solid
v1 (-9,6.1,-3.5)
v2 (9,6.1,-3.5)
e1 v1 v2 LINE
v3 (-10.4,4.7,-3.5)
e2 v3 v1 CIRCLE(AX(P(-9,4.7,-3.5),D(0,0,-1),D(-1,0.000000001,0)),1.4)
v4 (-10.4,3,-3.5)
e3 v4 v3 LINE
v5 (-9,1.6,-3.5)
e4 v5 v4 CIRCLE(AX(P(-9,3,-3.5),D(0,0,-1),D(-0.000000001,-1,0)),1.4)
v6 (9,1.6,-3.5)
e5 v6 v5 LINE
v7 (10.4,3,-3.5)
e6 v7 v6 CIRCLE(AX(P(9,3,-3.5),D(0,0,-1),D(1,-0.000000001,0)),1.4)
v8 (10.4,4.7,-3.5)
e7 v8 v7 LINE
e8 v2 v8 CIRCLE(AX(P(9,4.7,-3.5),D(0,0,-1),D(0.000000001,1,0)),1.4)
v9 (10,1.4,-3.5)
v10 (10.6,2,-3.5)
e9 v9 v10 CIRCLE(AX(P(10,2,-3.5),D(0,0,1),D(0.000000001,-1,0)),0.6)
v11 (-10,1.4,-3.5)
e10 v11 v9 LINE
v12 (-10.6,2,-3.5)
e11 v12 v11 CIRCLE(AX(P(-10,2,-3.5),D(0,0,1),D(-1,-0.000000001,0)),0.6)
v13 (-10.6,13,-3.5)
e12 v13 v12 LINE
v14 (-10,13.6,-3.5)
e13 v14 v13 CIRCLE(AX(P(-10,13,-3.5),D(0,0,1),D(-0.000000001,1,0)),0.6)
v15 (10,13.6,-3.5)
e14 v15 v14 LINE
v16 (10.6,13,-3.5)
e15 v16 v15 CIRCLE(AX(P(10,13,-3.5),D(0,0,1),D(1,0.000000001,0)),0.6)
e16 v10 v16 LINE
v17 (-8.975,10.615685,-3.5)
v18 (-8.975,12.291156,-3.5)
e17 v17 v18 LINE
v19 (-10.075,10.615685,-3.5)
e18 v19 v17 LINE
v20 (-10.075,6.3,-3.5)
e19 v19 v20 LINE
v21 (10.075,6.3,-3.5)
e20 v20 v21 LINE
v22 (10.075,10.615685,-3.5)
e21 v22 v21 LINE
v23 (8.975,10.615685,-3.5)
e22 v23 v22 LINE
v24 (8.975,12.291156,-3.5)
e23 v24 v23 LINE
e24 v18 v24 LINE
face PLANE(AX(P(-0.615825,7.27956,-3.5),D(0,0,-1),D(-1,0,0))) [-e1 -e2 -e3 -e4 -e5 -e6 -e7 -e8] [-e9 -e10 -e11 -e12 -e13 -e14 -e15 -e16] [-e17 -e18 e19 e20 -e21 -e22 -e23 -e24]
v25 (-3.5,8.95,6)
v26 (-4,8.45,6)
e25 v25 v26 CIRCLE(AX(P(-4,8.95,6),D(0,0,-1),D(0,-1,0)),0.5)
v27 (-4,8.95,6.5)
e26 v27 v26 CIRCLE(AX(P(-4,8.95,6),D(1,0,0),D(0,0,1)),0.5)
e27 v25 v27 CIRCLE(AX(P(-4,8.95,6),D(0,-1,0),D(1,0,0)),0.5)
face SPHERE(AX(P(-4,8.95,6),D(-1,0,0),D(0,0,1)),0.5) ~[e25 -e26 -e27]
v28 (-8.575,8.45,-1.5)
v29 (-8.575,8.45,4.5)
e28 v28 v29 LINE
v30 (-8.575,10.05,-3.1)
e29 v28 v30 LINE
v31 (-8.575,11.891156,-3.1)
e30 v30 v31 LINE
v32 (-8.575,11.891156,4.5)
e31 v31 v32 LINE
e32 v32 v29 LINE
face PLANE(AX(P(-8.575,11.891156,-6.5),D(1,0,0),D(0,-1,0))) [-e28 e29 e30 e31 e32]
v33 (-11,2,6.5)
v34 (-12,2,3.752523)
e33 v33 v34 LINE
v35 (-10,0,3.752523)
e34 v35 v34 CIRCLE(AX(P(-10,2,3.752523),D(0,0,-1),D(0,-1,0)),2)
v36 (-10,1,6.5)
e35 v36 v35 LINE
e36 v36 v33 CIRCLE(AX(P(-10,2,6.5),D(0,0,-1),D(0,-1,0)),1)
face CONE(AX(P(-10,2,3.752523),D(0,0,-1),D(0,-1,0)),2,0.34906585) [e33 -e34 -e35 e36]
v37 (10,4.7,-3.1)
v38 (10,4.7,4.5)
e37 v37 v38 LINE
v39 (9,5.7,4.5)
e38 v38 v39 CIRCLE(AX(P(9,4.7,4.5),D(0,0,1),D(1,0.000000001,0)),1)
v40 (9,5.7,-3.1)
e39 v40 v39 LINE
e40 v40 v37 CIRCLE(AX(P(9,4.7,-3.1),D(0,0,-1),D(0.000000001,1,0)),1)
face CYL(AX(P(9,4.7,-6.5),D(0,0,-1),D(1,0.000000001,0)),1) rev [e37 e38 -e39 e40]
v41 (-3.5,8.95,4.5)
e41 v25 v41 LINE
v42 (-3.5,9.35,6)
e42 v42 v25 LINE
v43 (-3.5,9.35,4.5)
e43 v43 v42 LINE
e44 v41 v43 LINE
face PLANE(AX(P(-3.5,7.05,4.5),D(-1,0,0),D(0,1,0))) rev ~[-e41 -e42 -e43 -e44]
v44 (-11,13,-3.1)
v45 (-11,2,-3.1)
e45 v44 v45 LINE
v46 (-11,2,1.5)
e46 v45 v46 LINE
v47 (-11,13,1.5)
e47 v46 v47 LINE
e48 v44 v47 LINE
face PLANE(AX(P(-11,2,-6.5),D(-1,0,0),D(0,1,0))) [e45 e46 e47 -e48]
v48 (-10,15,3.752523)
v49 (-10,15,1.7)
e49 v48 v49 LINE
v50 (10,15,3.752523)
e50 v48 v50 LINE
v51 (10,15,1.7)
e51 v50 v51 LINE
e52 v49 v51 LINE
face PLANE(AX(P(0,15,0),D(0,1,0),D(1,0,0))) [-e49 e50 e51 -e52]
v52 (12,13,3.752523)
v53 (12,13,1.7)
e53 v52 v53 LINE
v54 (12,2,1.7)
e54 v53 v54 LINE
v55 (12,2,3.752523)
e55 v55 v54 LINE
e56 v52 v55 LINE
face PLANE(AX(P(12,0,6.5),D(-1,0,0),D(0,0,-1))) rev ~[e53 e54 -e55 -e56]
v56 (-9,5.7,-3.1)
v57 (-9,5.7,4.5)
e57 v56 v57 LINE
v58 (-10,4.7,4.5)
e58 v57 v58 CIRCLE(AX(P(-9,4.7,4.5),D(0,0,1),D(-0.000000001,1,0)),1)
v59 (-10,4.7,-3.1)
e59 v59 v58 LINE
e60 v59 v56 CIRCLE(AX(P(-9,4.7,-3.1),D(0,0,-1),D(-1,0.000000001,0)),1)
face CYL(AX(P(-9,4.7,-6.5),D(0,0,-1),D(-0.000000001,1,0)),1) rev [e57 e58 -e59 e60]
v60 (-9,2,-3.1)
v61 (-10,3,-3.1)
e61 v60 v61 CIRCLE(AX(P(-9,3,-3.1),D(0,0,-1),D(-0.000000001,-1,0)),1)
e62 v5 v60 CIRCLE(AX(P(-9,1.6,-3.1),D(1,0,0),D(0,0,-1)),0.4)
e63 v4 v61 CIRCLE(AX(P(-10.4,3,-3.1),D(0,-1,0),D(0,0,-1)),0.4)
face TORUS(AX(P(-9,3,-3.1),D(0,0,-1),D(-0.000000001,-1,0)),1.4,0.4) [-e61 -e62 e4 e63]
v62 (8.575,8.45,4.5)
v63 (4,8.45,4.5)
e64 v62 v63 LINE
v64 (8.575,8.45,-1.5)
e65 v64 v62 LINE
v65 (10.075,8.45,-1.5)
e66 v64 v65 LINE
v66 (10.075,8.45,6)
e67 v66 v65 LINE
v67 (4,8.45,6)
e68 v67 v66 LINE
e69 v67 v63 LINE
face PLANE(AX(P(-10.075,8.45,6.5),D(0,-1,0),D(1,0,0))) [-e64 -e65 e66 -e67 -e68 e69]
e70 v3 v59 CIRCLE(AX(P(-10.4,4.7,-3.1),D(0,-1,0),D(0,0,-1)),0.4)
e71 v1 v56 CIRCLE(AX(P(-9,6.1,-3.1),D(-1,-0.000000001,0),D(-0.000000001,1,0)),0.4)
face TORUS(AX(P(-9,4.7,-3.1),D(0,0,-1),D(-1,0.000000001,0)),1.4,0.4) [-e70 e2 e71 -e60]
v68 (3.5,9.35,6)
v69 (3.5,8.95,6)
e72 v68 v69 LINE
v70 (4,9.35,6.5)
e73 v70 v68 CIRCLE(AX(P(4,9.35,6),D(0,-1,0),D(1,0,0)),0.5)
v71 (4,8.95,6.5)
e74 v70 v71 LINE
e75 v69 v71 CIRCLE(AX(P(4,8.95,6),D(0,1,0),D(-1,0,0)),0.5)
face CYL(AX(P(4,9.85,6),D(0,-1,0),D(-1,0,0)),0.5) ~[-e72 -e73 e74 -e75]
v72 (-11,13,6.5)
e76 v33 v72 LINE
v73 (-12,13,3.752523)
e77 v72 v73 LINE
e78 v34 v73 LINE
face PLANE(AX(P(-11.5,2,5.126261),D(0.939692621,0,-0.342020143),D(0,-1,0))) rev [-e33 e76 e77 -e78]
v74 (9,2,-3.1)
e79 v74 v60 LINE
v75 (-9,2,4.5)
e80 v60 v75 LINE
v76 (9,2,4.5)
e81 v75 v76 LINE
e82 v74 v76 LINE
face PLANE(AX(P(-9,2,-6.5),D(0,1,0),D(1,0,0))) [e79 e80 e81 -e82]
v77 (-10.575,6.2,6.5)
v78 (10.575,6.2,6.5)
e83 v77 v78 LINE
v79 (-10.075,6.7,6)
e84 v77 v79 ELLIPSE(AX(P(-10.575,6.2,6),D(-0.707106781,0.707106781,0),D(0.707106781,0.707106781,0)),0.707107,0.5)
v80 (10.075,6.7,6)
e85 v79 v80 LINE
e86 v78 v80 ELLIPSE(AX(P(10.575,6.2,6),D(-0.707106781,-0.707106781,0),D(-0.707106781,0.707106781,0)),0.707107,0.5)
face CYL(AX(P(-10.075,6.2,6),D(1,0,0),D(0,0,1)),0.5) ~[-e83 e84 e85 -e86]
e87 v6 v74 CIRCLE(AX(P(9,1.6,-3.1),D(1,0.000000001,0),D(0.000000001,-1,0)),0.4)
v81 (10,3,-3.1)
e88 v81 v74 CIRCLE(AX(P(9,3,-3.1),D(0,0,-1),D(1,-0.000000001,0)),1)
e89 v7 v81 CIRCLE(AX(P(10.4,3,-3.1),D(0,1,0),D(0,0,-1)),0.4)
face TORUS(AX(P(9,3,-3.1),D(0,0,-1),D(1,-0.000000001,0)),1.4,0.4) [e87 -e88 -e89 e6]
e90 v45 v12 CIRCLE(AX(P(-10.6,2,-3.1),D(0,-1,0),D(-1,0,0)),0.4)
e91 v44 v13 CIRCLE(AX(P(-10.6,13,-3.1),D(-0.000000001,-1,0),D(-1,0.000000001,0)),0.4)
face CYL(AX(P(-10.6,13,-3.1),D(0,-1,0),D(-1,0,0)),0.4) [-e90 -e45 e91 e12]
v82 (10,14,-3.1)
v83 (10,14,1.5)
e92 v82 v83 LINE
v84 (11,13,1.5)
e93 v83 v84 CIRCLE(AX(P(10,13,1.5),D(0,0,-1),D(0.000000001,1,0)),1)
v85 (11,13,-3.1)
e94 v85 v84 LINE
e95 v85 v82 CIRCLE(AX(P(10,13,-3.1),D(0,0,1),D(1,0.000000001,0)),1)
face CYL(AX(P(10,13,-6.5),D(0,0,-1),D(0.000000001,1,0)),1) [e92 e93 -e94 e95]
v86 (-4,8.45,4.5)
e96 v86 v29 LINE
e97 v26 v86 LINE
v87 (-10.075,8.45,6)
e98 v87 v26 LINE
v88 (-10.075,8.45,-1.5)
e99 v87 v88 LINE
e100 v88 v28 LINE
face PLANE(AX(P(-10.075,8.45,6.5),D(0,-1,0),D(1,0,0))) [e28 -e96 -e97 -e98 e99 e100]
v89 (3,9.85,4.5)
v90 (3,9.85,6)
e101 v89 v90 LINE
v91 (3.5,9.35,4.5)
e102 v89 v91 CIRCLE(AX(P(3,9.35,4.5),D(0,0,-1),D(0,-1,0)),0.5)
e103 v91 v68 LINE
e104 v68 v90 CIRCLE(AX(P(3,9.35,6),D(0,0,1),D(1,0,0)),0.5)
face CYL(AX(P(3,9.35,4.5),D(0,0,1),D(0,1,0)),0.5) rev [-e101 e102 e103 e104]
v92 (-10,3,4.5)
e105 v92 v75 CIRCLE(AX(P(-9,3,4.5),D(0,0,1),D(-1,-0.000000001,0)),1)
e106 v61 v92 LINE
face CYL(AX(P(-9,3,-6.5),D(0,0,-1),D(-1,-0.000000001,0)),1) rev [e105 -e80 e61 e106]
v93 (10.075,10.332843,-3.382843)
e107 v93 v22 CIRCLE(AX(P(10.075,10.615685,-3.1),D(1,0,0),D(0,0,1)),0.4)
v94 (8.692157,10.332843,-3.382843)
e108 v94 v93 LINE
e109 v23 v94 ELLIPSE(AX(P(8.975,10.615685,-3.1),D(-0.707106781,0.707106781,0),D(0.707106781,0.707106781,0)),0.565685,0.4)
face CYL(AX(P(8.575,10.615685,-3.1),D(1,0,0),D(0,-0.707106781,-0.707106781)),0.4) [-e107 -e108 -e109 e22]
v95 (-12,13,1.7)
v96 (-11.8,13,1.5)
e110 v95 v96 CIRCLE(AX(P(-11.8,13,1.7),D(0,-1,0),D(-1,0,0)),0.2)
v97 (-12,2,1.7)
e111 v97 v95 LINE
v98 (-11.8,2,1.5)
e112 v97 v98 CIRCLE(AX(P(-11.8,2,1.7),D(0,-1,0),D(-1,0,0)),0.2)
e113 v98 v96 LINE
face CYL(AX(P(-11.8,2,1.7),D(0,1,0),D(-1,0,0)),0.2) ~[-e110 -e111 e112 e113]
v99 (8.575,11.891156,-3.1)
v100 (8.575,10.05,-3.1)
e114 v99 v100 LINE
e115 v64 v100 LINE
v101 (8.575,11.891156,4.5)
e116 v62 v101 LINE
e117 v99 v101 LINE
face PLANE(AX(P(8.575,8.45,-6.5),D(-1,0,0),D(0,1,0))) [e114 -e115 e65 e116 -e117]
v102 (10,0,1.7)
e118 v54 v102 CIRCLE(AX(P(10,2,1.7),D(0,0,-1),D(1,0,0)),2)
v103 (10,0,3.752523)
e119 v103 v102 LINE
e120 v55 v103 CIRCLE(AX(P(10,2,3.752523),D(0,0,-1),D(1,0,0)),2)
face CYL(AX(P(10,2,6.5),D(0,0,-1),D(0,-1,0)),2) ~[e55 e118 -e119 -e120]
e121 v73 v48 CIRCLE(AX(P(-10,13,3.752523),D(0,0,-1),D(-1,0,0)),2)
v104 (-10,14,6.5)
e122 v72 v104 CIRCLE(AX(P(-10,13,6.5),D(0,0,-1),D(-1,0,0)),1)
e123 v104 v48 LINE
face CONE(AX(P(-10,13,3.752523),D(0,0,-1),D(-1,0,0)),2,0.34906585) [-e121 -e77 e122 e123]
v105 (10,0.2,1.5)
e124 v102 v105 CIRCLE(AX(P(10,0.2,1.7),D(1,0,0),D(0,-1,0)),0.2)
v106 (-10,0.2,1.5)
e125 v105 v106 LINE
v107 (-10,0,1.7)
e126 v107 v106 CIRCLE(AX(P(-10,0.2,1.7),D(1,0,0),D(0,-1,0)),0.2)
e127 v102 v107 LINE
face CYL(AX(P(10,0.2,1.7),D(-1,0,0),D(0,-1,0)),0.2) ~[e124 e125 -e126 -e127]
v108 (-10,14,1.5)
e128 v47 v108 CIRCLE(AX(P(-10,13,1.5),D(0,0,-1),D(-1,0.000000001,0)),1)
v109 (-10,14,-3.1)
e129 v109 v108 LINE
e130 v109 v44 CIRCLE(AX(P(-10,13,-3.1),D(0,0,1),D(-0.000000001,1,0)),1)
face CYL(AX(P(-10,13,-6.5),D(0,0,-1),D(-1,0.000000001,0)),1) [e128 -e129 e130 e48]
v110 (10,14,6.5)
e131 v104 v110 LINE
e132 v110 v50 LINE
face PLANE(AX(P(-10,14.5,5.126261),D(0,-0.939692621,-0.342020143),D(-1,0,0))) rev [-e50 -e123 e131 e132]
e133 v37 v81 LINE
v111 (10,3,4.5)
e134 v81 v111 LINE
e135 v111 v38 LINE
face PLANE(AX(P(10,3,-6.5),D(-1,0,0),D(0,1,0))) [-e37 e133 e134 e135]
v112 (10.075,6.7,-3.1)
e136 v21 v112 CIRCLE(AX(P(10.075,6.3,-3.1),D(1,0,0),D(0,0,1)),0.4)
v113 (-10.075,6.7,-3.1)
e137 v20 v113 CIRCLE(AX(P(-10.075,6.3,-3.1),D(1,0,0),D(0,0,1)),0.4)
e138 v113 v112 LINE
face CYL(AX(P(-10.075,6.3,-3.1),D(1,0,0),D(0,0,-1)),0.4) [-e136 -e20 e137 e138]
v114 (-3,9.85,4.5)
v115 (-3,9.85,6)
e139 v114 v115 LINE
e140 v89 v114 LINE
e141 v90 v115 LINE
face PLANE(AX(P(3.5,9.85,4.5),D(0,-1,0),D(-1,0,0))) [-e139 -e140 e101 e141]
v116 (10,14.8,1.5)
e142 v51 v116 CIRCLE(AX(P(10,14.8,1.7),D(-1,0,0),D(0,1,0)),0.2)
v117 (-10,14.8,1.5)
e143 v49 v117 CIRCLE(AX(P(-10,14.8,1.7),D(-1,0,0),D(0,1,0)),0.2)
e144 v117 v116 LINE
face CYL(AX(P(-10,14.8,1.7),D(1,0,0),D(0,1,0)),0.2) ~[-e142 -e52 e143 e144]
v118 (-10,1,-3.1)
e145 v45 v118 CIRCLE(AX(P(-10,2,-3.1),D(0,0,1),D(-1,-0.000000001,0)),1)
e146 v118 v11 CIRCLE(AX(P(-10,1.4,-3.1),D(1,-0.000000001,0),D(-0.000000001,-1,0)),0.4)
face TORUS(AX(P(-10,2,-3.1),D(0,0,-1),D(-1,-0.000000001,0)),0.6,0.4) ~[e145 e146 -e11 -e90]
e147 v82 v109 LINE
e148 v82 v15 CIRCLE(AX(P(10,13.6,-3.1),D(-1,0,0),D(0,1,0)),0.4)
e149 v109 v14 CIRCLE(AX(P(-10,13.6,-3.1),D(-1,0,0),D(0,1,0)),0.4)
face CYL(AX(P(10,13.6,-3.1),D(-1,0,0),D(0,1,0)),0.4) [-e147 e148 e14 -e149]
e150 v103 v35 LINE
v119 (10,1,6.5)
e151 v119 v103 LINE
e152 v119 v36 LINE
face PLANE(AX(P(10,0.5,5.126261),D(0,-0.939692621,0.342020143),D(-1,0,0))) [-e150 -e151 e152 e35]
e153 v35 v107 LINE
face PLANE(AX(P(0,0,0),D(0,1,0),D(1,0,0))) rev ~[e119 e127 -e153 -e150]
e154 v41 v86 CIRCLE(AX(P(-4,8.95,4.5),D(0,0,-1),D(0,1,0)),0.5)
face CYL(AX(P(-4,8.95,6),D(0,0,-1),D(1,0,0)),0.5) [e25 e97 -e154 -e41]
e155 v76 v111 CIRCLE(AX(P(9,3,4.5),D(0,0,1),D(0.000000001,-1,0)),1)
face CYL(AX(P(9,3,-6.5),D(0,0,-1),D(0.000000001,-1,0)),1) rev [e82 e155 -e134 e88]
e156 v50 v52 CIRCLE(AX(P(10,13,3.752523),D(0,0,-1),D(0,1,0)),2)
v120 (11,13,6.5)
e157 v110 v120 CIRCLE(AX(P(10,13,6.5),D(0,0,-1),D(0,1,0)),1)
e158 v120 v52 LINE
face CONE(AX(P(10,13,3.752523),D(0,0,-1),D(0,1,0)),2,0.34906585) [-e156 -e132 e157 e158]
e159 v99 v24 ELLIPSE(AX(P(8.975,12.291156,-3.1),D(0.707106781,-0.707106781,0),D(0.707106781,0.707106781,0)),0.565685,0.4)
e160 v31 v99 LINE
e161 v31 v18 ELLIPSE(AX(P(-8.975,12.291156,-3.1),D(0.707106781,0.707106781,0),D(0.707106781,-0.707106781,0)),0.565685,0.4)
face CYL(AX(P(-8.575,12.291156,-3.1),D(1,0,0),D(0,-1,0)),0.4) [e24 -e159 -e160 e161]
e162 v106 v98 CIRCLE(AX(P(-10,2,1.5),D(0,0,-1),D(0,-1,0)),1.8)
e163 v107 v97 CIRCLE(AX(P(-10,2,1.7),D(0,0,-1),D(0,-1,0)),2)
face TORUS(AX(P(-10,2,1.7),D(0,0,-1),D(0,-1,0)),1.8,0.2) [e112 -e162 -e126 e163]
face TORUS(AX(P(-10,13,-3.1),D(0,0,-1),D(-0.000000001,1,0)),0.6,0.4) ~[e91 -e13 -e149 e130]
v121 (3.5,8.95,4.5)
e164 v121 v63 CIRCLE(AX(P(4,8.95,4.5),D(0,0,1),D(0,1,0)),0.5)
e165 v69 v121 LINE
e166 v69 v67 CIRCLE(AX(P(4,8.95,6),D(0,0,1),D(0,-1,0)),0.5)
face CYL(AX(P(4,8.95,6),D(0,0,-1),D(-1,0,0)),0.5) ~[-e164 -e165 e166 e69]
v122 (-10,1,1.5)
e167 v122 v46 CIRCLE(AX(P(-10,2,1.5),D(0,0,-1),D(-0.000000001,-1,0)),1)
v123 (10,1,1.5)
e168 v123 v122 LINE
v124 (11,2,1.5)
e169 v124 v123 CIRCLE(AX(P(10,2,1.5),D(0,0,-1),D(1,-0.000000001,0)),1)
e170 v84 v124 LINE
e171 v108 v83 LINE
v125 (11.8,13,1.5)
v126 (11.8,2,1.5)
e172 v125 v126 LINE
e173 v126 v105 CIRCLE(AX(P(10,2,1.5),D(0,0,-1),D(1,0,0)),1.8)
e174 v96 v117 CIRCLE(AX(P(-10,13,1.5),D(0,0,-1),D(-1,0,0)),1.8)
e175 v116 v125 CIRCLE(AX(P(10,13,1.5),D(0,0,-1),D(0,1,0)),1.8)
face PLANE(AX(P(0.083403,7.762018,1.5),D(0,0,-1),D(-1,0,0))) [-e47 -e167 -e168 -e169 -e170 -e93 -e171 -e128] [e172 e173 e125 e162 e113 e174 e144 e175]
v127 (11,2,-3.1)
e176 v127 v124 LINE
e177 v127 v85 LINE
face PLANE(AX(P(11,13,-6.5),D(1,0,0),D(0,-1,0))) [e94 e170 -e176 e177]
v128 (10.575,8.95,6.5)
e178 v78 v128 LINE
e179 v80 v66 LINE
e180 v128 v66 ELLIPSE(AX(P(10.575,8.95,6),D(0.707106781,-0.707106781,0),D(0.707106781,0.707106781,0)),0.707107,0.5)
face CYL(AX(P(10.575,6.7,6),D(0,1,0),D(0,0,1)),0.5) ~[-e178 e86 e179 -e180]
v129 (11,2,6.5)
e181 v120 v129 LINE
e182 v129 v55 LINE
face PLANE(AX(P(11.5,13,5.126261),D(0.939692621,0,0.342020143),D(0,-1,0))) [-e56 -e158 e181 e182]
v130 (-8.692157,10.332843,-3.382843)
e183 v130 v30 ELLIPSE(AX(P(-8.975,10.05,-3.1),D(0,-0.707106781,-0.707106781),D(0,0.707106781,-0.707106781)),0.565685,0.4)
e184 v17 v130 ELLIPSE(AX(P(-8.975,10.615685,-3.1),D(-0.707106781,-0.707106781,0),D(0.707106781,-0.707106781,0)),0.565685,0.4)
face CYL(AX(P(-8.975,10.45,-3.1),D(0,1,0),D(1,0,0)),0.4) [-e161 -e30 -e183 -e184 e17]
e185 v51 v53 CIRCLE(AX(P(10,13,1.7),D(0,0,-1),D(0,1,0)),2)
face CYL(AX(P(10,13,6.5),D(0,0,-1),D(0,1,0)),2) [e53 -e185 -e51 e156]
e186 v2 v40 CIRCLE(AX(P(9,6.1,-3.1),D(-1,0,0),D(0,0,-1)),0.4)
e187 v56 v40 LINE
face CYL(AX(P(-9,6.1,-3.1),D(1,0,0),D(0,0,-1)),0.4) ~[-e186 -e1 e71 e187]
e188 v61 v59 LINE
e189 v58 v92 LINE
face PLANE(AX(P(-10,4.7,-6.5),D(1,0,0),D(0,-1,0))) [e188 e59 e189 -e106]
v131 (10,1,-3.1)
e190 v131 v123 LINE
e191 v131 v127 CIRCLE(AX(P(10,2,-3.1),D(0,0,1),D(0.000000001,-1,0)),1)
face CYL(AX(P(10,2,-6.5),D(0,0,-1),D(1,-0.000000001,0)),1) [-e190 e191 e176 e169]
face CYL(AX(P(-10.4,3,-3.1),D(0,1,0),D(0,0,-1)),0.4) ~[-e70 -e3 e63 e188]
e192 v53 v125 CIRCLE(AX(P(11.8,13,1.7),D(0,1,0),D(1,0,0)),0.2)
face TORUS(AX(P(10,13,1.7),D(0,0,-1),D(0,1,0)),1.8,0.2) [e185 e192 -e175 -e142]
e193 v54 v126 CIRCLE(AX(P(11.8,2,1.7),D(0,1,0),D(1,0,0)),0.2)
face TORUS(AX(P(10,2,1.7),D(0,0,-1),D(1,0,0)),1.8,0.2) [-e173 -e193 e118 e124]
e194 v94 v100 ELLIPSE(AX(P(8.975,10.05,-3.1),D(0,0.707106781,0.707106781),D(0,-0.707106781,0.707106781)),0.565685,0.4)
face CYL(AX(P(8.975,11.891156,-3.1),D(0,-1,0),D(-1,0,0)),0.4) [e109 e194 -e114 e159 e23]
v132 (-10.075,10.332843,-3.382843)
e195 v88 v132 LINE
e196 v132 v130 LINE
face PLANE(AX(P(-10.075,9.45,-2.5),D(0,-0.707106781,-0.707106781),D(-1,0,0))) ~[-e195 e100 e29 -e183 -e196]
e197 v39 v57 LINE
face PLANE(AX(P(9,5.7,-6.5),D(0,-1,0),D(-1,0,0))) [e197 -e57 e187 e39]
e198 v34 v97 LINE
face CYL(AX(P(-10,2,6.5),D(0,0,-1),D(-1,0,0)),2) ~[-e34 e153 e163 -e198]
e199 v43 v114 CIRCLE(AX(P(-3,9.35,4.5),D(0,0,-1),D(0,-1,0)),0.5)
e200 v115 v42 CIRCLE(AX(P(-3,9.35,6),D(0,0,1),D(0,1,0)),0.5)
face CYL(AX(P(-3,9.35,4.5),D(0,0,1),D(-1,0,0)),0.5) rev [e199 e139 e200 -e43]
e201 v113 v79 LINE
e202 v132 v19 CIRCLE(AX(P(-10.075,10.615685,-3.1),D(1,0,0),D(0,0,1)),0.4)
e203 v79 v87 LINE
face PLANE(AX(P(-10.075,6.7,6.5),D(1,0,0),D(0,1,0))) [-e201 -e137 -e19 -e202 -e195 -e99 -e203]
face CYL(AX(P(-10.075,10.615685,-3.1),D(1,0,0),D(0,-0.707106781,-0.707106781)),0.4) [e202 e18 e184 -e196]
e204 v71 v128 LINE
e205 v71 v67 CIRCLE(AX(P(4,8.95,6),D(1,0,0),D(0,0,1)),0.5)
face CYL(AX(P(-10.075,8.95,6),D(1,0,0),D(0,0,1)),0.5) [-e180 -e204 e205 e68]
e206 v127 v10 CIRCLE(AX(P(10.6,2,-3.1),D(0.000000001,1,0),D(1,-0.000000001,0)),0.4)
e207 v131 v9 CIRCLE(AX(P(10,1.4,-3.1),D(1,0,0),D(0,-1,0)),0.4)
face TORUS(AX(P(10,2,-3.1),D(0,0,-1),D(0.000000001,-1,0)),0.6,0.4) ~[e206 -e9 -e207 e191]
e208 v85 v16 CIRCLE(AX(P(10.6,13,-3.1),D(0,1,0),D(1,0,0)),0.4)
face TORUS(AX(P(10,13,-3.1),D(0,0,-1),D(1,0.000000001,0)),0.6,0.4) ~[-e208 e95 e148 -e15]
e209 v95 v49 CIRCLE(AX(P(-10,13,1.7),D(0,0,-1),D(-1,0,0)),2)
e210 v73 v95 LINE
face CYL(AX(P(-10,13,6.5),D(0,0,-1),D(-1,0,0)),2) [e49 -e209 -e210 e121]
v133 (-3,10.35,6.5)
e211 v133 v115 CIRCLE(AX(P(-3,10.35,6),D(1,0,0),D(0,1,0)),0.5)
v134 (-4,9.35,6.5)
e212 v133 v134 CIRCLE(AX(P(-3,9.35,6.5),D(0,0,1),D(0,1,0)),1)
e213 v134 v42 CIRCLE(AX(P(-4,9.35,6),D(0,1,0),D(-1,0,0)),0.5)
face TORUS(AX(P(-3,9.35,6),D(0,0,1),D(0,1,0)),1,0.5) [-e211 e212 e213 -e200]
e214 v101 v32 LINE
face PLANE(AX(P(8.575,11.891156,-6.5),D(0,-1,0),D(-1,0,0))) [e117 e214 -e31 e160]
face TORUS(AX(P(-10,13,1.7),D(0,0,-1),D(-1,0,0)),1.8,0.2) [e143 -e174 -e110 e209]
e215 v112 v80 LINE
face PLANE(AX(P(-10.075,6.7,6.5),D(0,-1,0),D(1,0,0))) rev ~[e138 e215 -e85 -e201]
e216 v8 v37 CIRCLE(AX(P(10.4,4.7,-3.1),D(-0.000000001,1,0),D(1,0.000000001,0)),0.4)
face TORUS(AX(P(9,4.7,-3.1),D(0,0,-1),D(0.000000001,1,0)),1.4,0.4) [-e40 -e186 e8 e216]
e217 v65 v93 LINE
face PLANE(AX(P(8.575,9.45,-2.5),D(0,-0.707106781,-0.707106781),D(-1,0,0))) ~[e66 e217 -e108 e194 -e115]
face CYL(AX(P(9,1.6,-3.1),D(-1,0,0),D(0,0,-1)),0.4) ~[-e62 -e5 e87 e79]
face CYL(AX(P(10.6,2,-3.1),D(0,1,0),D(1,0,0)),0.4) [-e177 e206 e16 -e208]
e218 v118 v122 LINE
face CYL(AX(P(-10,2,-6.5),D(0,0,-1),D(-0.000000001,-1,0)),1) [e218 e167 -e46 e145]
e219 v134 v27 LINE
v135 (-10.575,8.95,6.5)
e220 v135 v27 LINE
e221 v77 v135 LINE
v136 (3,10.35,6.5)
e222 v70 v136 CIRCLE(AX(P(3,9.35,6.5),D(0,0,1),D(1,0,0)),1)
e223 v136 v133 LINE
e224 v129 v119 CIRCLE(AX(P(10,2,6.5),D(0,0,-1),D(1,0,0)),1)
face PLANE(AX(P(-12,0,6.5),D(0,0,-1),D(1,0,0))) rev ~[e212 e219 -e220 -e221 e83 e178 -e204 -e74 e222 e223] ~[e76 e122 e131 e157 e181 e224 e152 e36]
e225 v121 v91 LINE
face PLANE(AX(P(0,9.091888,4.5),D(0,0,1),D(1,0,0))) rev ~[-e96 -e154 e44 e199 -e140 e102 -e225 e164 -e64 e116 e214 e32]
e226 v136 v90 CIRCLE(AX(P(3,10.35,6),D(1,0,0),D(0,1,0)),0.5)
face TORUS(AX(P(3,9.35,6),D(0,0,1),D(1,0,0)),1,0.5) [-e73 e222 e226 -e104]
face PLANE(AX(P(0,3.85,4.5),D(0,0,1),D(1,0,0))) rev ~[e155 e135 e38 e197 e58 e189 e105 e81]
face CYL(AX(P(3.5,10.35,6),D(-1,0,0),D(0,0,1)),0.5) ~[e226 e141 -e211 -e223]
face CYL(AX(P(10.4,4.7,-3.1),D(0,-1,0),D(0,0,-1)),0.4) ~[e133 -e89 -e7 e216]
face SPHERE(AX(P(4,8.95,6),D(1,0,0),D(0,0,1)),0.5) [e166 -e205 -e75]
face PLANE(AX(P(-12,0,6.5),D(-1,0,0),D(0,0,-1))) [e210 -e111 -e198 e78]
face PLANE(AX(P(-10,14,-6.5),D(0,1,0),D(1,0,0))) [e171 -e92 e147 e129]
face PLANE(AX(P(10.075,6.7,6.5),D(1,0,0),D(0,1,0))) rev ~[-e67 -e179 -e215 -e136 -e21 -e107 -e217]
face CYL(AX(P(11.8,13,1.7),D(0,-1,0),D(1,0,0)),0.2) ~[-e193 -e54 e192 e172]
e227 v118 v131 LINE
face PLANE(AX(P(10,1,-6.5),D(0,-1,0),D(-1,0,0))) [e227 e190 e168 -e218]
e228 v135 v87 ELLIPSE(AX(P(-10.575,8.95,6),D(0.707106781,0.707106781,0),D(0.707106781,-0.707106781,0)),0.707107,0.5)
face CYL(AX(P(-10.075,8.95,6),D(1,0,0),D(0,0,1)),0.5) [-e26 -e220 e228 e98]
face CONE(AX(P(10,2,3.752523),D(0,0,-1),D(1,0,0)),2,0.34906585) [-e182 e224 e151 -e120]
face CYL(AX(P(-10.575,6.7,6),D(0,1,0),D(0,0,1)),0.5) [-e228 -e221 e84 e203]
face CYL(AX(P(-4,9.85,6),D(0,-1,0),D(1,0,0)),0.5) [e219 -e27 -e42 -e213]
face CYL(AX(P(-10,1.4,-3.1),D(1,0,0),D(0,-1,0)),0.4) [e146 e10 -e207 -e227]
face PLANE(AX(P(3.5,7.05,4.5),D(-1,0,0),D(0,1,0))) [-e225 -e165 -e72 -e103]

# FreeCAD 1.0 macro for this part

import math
import FreeCAD as App
import Part
import Sketcher


def edges_at(feature, points):
    """Names of the edges that pass closest to the given points."""
    edges = feature.Shape.Edges
    near = lambda p: min(range(len(edges)), key=lambda i: edges[i].distToShape(Part.Vertex(*p))[0])
    return sorted({f"Edge{near(p) + 1}" for p in points})

doc = App.newDocument("Part")
params = doc.addObject("Spreadsheet::Sheet", "Params")
for row, (alias, value) in enumerate([
    ("sketch1_width", "24 mm"),
    ("sketch1_height", "13 mm"),
    ("pad1_length", "15 mm"),
    ("sketch2_width", "20.15 mm"),
    ("sketch2_height", "1.75 mm"),
    ("pocket1_length", "15 mm"),
    ("fillet_radius", "2 mm"),
    ("chamfer_size", "1 mm"),
    ("chamfer_size2", "2.747477 mm"),
    ("fillet2_radius", "0.5 mm"),
    ("sketch3_width", "1.5 mm"),
    ("sketch3_width2", "20.15 mm"),
    ("sketch3_height", "1.75 mm"),
    ("pocket2_length", "11 mm"),
    ("sketch4_radius", "1 mm"),
    ("sketch4_width", "20 mm"),
    ("sketch4_height", "11 mm"),
    ("pocket3_length", "8 mm"),
    ("sketch5_radius", "1 mm"),
    ("sketch5_width", "18 mm"),
    ("sketch5_height", "1.7 mm"),
    ("pocket4_length", "11 mm"),
    ("pocket5_length", "3 mm"),
    ("chamfer2_size", "2 mm"),
    ("fillet3_radius", "0.4 mm"),
    ("fillet4_radius", "0.2 mm"),
    ("sketch7_width", "7 mm"),
    ("sketch7_height", "2.8 mm"),
    ("fillet5_radius", "0.5 mm"),
], start=1):
    params.set(f"A{row}", alias)
    params.set(f"B{row}", "=" + value)
    params.setAlias(f"B{row}", alias)

body = doc.addObject("PartDesign::Body", "Body")

# Sketch on XZ plane
sketch1 = body.newObject("Sketcher::SketchObject", "Sketch")
sketch1.AttachmentSupport = (doc.getObject("XZ_Plane"), [""])
sketch1.MapMode = "FlatFace"
sketch1.addGeometry(Part.LineSegment(App.Vector(-12, -6, 0), App.Vector(-12, 6, 0)), False)
sketch1.addGeometry(Part.LineSegment(App.Vector(-12, 6, 0), App.Vector(12, 6, 0)), False)
sketch1.addGeometry(Part.LineSegment(App.Vector(12, 6, 0), App.Vector(12, -6, 0)), False)
sketch1.addGeometry(Part.LineSegment(App.Vector(12, -6, 0), App.Vector(-12, -6, 0)), False)
sketch1.addConstraint(Sketcher.Constraint("Coincident", 0, 2, 1, 1))
sketch1.addConstraint(Sketcher.Constraint("Coincident", 1, 2, 2, 1))
sketch1.addConstraint(Sketcher.Constraint("Coincident", 2, 2, 3, 1))
sketch1.addConstraint(Sketcher.Constraint("Coincident", 3, 2, 0, 1))
sketch1.addConstraint(Sketcher.Constraint("Vertical", 0))
sketch1.addConstraint(Sketcher.Constraint("Horizontal", 1))
sketch1.addConstraint(Sketcher.Constraint("Vertical", 2))
sketch1.addConstraint(Sketcher.Constraint("Horizontal", 3))
sketch1.addConstraint(Sketcher.Constraint("Symmetric", 0, 2, 2, 2, -1, 1))
sketch1.addConstraint(Sketcher.Constraint("DistanceX", 1, 1, 1, 2, 24.0))
sketch1.addConstraint(Sketcher.Constraint("DistanceY", 0, 1, 0, 2, 13.0))
sketch1.setExpression("Constraints[9]", "Params.sketch1_width")
sketch1.setExpression("Constraints[10]", "Params.sketch1_height")
pad1 = body.newObject("PartDesign::Pad", "Pad")
pad1.Profile = sketch1
pad1.setExpression("Length", "Params.pad1_length")
pad1.Reversed = True

# Sketch on XY plane
sketch2 = body.newObject("Sketcher::SketchObject", "Sketch001")
sketch2.AttachmentSupport = (doc.getObject("XY_Plane"), [""])
sketch2.MapMode = "FlatFace"
sketch2.AttachmentOffset = App.Placement(App.Vector(0, 0, 6.5), App.Rotation())
sketch2.addGeometry(Part.LineSegment(App.Vector(-10.1, 8.4, 0), App.Vector(-10.1, 6.7, 0)), False)
sketch2.addGeometry(Part.LineSegment(App.Vector(-10.1, 6.7, 0), App.Vector(10.1, 6.7, 0)), False)
sketch2.addGeometry(Part.LineSegment(App.Vector(10.1, 6.7, 0), App.Vector(10.1, 8.4, 0)), False)
sketch2.addGeometry(Part.LineSegment(App.Vector(10.1, 8.4, 0), App.Vector(-10.1, 8.4, 0)), False)
sketch2.addConstraint(Sketcher.Constraint("Coincident", 0, 2, 1, 1))
sketch2.addConstraint(Sketcher.Constraint("Coincident", 1, 2, 2, 1))
sketch2.addConstraint(Sketcher.Constraint("Coincident", 2, 2, 3, 1))
sketch2.addConstraint(Sketcher.Constraint("Coincident", 3, 2, 0, 1))
sketch2.addConstraint(Sketcher.Constraint("Vertical", 0))
sketch2.addConstraint(Sketcher.Constraint("Horizontal", 1))
sketch2.addConstraint(Sketcher.Constraint("Vertical", 2))
sketch2.addConstraint(Sketcher.Constraint("Horizontal", 3))
sketch2.addConstraint(Sketcher.Constraint("DistanceX", 1, 1, 1, 2, 20.15))
sketch2.addConstraint(Sketcher.Constraint("DistanceY", 0, 2, 0, 1, 1.75))
sketch2.addConstraint(Sketcher.Constraint("DistanceY", -1, 1, 0, 2, 6.7))
sketch2.addConstraint(Sketcher.Constraint("DistanceX", 0, 2, -1, 1, 10.075))
sketch2.setExpression("Constraints[8]", "Params.sketch2_width")
sketch2.setExpression("Constraints[9]", "Params.sketch2_height")
pocket1 = body.newObject("PartDesign::Pocket", "Pocket")
pocket1.Profile = sketch2
pocket1.setExpression("Length", "Params.pocket1_length")
doc.recompute()

fillet = body.newObject("PartDesign::Fillet", "Fillet")
fillet.Base = (pocket1, edges_at(pocket1, [
    (-12, 15, 0),
    (12, 15, 0),
    (-12, 0, 0),
    (12, 0, 0),
]))
fillet.setExpression("Radius", "Params.fillet_radius")
doc.recompute()

chamfer = body.newObject("PartDesign::Chamfer", "Chamfer")
chamfer.Base = (fillet, edges_at(fillet, [
    (0, 15, 6.5),
    (12, 7.5, 6.5),
    (0, 0, 6.5),
    (-12, 7.5, 6.5),
    (-11.414, 14.414, 6.5),
    (-11.414, 0.586, 6.5),
    (11.414, 0.586, 6.5),
    (11.414, 14.414, 6.5),
]))
chamfer.ChamferType = "Two distances"
chamfer.setExpression("Size", "Params.chamfer_size")
chamfer.setExpression("Size2", "Params.chamfer_size2")
chamfer.FlipDirection = True
doc.recompute()

fillet2 = body.newObject("PartDesign::Fillet", "Fillet001")
fillet2.Base = (chamfer, edges_at(chamfer, [
    (10.075, 7.575, 6.5),
    (0, 8.45, 6.5),
    (-10.075, 7.575, 6.5),
    (0, 6.7, 6.5),
]))
fillet2.setExpression("Radius", "Params.fillet2_radius")

# Sketch on XY plane
sketch3 = body.newObject("Sketcher::SketchObject", "Sketch002")
sketch3.AttachmentSupport = (doc.getObject("XY_Plane"), [""])
sketch3.MapMode = "FlatFace"
sketch3.AttachmentOffset = App.Placement(App.Vector(0, 0, -6.5), App.Rotation())
sketch3.addGeometry(Part.LineSegment(App.Vector(8.6, 8.4, 0), App.Vector(10.1, 8.4, 0)), False)
sketch3.addGeometry(Part.LineSegment(App.Vector(10.1, 8.4, 0), App.Vector(10.1, 6.7, 0)), False)
sketch3.addGeometry(Part.LineSegment(App.Vector(10.1, 6.7, 0), App.Vector(-10.1, 6.7, 0)), False)
sketch3.addGeometry(Part.LineSegment(App.Vector(-10.1, 6.7, 0), App.Vector(-10.1, 8.4, 0)), False)
sketch3.addGeometry(Part.LineSegment(App.Vector(-10.1, 8.4, 0), App.Vector(-8.6, 8.4, 0)), False)
sketch3.addGeometry(Part.LineSegment(App.Vector(-8.6, 8.4, 0), App.Vector(-8.6, 11.9, 0)), False)
sketch3.addGeometry(Part.LineSegment(App.Vector(-8.6, 11.9, 0), App.Vector(8.6, 11.9, 0)), False)
sketch3.addGeometry(Part.LineSegment(App.Vector(8.6, 11.9, 0), App.Vector(8.6, 8.4, 0)), False)
sketch3.addConstraint(Sketcher.Constraint("Coincident", 0, 2, 1, 1))
sketch3.addConstraint(Sketcher.Constraint("Coincident", 1, 2, 2, 1))
sketch3.addConstraint(Sketcher.Constraint("Coincident", 2, 2, 3, 1))
sketch3.addConstraint(Sketcher.Constraint("Coincident", 3, 2, 4, 1))
sketch3.addConstraint(Sketcher.Constraint("Coincident", 4, 2, 5, 1))
sketch3.addConstraint(Sketcher.Constraint("Coincident", 5, 2, 6, 1))
sketch3.addConstraint(Sketcher.Constraint("Coincident", 6, 2, 7, 1))
sketch3.addConstraint(Sketcher.Constraint("Coincident", 7, 2, 0, 1))
sketch3.addConstraint(Sketcher.Constraint("Horizontal", 0))
sketch3.addConstraint(Sketcher.Constraint("Vertical", 1))
sketch3.addConstraint(Sketcher.Constraint("Horizontal", 2))
sketch3.addConstraint(Sketcher.Constraint("Vertical", 3))
sketch3.addConstraint(Sketcher.Constraint("Horizontal", 4))
sketch3.addConstraint(Sketcher.Constraint("Vertical", 5))
sketch3.addConstraint(Sketcher.Constraint("Horizontal", 6))
sketch3.addConstraint(Sketcher.Constraint("Vertical", 7))
sketch3.addConstraint(Sketcher.Constraint("Symmetric", 0, 2, 3, 2, -2))
sketch3.addConstraint(Sketcher.Constraint("Equal", 0, 4))
sketch3.addConstraint(Sketcher.Constraint("DistanceX", 0, 1, 0, 2, 1.5))
sketch3.addConstraint(Sketcher.Constraint("DistanceX", 2, 2, 2, 1, 20.15))
sketch3.addConstraint(Sketcher.Constraint("DistanceY", 1, 2, 1, 1, 1.75))
sketch3.addConstraint(Sketcher.Constraint("DistanceY", -1, 1, 1, 2, 6.7))
sketch3.addConstraint(Sketcher.Constraint("DistanceY", 5, 1, 5, 2, 3.441156))
sketch3.setExpression("Constraints[18]", "Params.sketch3_width")
sketch3.setExpression("Constraints[19]", "Params.sketch3_width2")
sketch3.setExpression("Constraints[20]", "Params.sketch3_height")
pocket2 = body.newObject("PartDesign::Pocket", "Pocket001")
pocket2.Profile = sketch3
pocket2.setExpression("Length", "Params.pocket2_length")
pocket2.Reversed = True

# Sketch on XY plane
sketch4 = body.newObject("Sketcher::SketchObject", "Sketch003")
sketch4.AttachmentSupport = (doc.getObject("XY_Plane"), [""])
sketch4.MapMode = "FlatFace"
sketch4.AttachmentOffset = App.Placement(App.Vector(0, 0, -6.5), App.Rotation())
sketch4.addGeometry(Part.LineSegment(App.Vector(13.5, 17.4, 0), App.Vector(13.5, -1.9, 0)), False)
sketch4.addGeometry(Part.LineSegment(App.Vector(13.5, -1.9, 0), App.Vector(-13.3, -1.9, 0)), False)
sketch4.addGeometry(Part.LineSegment(App.Vector(-13.3, -1.9, 0), App.Vector(-13.3, 17.4, 0)), False)
sketch4.addGeometry(Part.LineSegment(App.Vector(-13.3, 17.4, 0), App.Vector(13.5, 17.4, 0)), False)
sketch4.addGeometry(Part.LineSegment(App.Vector(10, 14, 0), App.Vector(-10, 14, 0)), False)
sketch4.addGeometry(Part.ArcOfCircle(Part.Circle(App.Vector(-10, 13, 0), App.Vector(0, 0, 1), 1), math.radians(90), math.radians(180)), False)
sketch4.addGeometry(Part.LineSegment(App.Vector(-11, 13, 0), App.Vector(-11, 2, 0)), False)
sketch4.addGeometry(Part.ArcOfCircle(Part.Circle(App.Vector(-10, 2, 0), App.Vector(0, 0, 1), 1), math.radians(-180), math.radians(-90)), False)
sketch4.addGeometry(Part.LineSegment(App.Vector(-10, 1, 0), App.Vector(10, 1, 0)), False)
sketch4.addGeometry(Part.ArcOfCircle(Part.Circle(App.Vector(10, 2, 0), App.Vector(0, 0, 1), 1), math.radians(-90), math.radians(0)), False)
sketch4.addGeometry(Part.LineSegment(App.Vector(11, 2, 0), App.Vector(11, 13, 0)), False)
sketch4.addGeometry(Part.ArcOfCircle(Part.Circle(App.Vector(10, 13, 0), App.Vector(0, 0, 1), 1), math.radians(0), math.radians(90)), False)
sketch4.addConstraint(Sketcher.Constraint("Coincident", 0, 2, 1, 1))
sketch4.addConstraint(Sketcher.Constraint("Coincident", 1, 2, 2, 1))
sketch4.addConstraint(Sketcher.Constraint("Coincident", 2, 2, 3, 1))
sketch4.addConstraint(Sketcher.Constraint("Coincident", 3, 2, 0, 1))
sketch4.addConstraint(Sketcher.Constraint("Tangent", 4, 2, 5, 1))
sketch4.addConstraint(Sketcher.Constraint("Tangent", 5, 2, 6, 1))
sketch4.addConstraint(Sketcher.Constraint("Tangent", 6, 2, 7, 1))
sketch4.addConstraint(Sketcher.Constraint("Tangent", 7, 2, 8, 1))
sketch4.addConstraint(Sketcher.Constraint("Tangent", 8, 2, 9, 1))
sketch4.addConstraint(Sketcher.Constraint("Tangent", 9, 2, 10, 1))
sketch4.addConstraint(Sketcher.Constraint("Tangent", 10, 2, 11, 1))
sketch4.addConstraint(Sketcher.Constraint("Tangent", 11, 2, 4, 1))
sketch4.addConstraint(Sketcher.Constraint("Vertical", 0))
sketch4.addConstraint(Sketcher.Constraint("Horizontal", 1))
sketch4.addConstraint(Sketcher.Constraint("Vertical", 2))
sketch4.addConstraint(Sketcher.Constraint("Horizontal", 3))
sketch4.addConstraint(Sketcher.Constraint("Horizontal", 4))
sketch4.addConstraint(Sketcher.Constraint("Vertical", 6))
sketch4.addConstraint(Sketcher.Constraint("Horizontal", 8))
sketch4.addConstraint(Sketcher.Constraint("Vertical", 10))
sketch4.addConstraint(Sketcher.Constraint("Equal", 5, 7))
sketch4.addConstraint(Sketcher.Constraint("Equal", 7, 9))
sketch4.addConstraint(Sketcher.Constraint("Equal", 9, 11))
sketch4.addConstraint(Sketcher.Constraint("Radius", 5, 1.0))
sketch4.addConstraint(Sketcher.Constraint("DistanceX", 4, 2, 4, 1, 20.0))
sketch4.addConstraint(Sketcher.Constraint("DistanceY", 6, 2, 6, 1, 11.0))
sketch4.addConstraint(Sketcher.Constraint("DistanceX", 5, 3, -1, 1, 10.0))
sketch4.addConstraint(Sketcher.Constraint("DistanceY", -1, 1, 5, 3, 13.0))
sketch4.addConstraint(Sketcher.Constraint("DistanceY", 0, 2, 0, 1, 19.307729))
sketch4.addConstraint(Sketcher.Constraint("DistanceX", 1, 2, 1, 1, 26.855674))
sketch4.addConstraint(Sketcher.Constraint("DistanceX", -1, 1, 0, 2, 13.51124))
sketch4.addConstraint(Sketcher.Constraint("DistanceY", 0, 2, -1, 1, 1.891846))
sketch4.setExpression("Constraints[23]", "Params.sketch4_radius")
sketch4.setExpression("Constraints[24]", "Params.sketch4_width")
sketch4.setExpression("Constraints[25]", "Params.sketch4_height")
pocket3 = body.newObject("PartDesign::Pocket", "Pocket002")
pocket3.Profile = sketch4
pocket3.setExpression("Length", "Params.pocket3_length")
pocket3.Reversed = True

# Sketch on XY plane
sketch5 = body.newObject("Sketcher::SketchObject", "Sketch004")
sketch5.AttachmentSupport = (doc.getObject("XY_Plane"), [""])
sketch5.MapMode = "FlatFace"
sketch5.AttachmentOffset = App.Placement(App.Vector(0, 0, -6.5), App.Rotation())
sketch5.addGeometry(Part.LineSegment(App.Vector(-9, 5.7, 0), App.Vector(9, 5.7, 0)), False)
sketch5.addGeometry(Part.ArcOfCircle(Part.Circle(App.Vector(9, 4.7, 0), App.Vector(0, 0, 1), 1), math.radians(0), math.radians(90)), False)
sketch5.addGeometry(Part.LineSegment(App.Vector(10, 4.7, 0), App.Vector(10, 3, 0)), False)
sketch5.addGeometry(Part.ArcOfCircle(Part.Circle(App.Vector(9, 3, 0), App.Vector(0, 0, 1), 1), math.radians(-90), math.radians(0)), False)
sketch5.addGeometry(Part.LineSegment(App.Vector(9, 2, 0), App.Vector(-9, 2, 0)), False)
sketch5.addGeometry(Part.ArcOfCircle(Part.Circle(App.Vector(-9, 3, 0), App.Vector(0, 0, 1), 1), math.radians(-180), math.radians(-90)), False)
sketch5.addGeometry(Part.LineSegment(App.Vector(-10, 3, 0), App.Vector(-10, 4.7, 0)), False)
sketch5.addGeometry(Part.ArcOfCircle(Part.Circle(App.Vector(-9, 4.7, 0), App.Vector(0, 0, 1), 1), math.radians(90), math.radians(180)), False)
sketch5.addConstraint(Sketcher.Constraint("Tangent", 0, 2, 1, 2))
sketch5.addConstraint(Sketcher.Constraint("Tangent", 1, 1, 2, 1))
sketch5.addConstraint(Sketcher.Constraint("Tangent", 2, 2, 3, 2))
sketch5.addConstraint(Sketcher.Constraint("Tangent", 3, 1, 4, 1))
sketch5.addConstraint(Sketcher.Constraint("Tangent", 4, 2, 5, 2))
sketch5.addConstraint(Sketcher.Constraint("Tangent", 5, 1, 6, 1))
sketch5.addConstraint(Sketcher.Constraint("Tangent", 6, 2, 7, 2))
sketch5.addConstraint(Sketcher.Constraint("Tangent", 7, 1, 0, 1))
sketch5.addConstraint(Sketcher.Constraint("Horizontal", 0))
sketch5.addConstraint(Sketcher.Constraint("Vertical", 2))
sketch5.addConstraint(Sketcher.Constraint("Horizontal", 4))
sketch5.addConstraint(Sketcher.Constraint("Vertical", 6))
sketch5.addConstraint(Sketcher.Constraint("Equal", 1, 3))
sketch5.addConstraint(Sketcher.Constraint("Equal", 3, 5))
sketch5.addConstraint(Sketcher.Constraint("Equal", 5, 7))
sketch5.addConstraint(Sketcher.Constraint("Radius", 1, 1.0))
sketch5.addConstraint(Sketcher.Constraint("DistanceX", 0, 1, 0, 2, 18.0))
sketch5.addConstraint(Sketcher.Constraint("DistanceY", 2, 2, 2, 1, 1.7))
sketch5.addConstraint(Sketcher.Constraint("DistanceX", -1, 1, 1, 3, 9.0))
sketch5.addConstraint(Sketcher.Constraint("DistanceY", -1, 1, 3, 3, 3.0))
sketch5.setExpression("Constraints[15]", "Params.sketch5_radius")
sketch5.setExpression("Constraints[16]", "Params.sketch5_width")
sketch5.setExpression("Constraints[17]", "Params.sketch5_height")
pocket4 = body.newObject("PartDesign::Pocket", "Pocket003")
pocket4.Profile = sketch5
pocket4.setExpression("Length", "Params.pocket4_length")
pocket4.Reversed = True

# Sketch on XY plane
sketch6 = body.newObject("Sketcher::SketchObject", "Sketch005")
sketch6.AttachmentSupport = (doc.getObject("XY_Plane"), [""])
sketch6.MapMode = "FlatFace"
sketch6.AttachmentOffset = App.Placement(App.Vector(0, 0, -6.5), App.Rotation())
sketch6.addGeometry(Part.LineSegment(App.Vector(14, 18, 0), App.Vector(14, -3, 0)), False)
sketch6.addGeometry(Part.LineSegment(App.Vector(14, -3, 0), App.Vector(-16, -3, 0)), False)
sketch6.addGeometry(Part.LineSegment(App.Vector(-16, -3, 0), App.Vector(-16, 18, 0)), False)
sketch6.addGeometry(Part.LineSegment(App.Vector(-16, 18, 0), App.Vector(14, 18, 0)), False)
sketch6.addConstraint(Sketcher.Constraint("Coincident", 0, 2, 1, 1))
sketch6.addConstraint(Sketcher.Constraint("Coincident", 1, 2, 2, 1))
sketch6.addConstraint(Sketcher.Constraint("Coincident", 2, 2, 3, 1))
sketch6.addConstraint(Sketcher.Constraint("Coincident", 3, 2, 0, 1))
sketch6.addConstraint(Sketcher.Constraint("Vertical", 0))
sketch6.addConstraint(Sketcher.Constraint("Horizontal", 1))
sketch6.addConstraint(Sketcher.Constraint("Vertical", 2))
sketch6.addConstraint(Sketcher.Constraint("Horizontal", 3))
sketch6.addConstraint(Sketcher.Constraint("DistanceX", 1, 2, 1, 1, 29.982722))
sketch6.addConstraint(Sketcher.Constraint("DistanceY", 0, 2, 0, 1, 21.559005))
sketch6.addConstraint(Sketcher.Constraint("DistanceY", -1, 1, 2, 2, 18.059062))
sketch6.addConstraint(Sketcher.Constraint("DistanceX", -1, 1, 0, 2, 14.375536))
pocket5 = body.newObject("PartDesign::Pocket", "Pocket004")
pocket5.Profile = sketch6
pocket5.setExpression("Length", "Params.pocket5_length")
pocket5.Reversed = True
doc.recompute()

chamfer2 = body.newObject("PartDesign::Chamfer", "Chamfer001")
chamfer2.Base = (pocket5, edges_at(pocket5, [(9.325, 8.45, -3.5), (-9.325, 8.45, -3.5)]))
chamfer2.setExpression("Size", "Params.chamfer2_size")
doc.recompute()

fillet3 = body.newObject("PartDesign::Fillet", "Fillet002")
fillet3.Base = (chamfer2, edges_at(chamfer2, [
    (-10, 3.85, -3.5),
    (0, 14, -3.5),
    (-10.707, 13.707, -3.5),
    (-11, 7.5, -3.5),
    (-10.707, 1.293, -3.5),
    (0, 1, -3.5),
    (10.707, 1.293, -3.5),
    (11, 7.5, -3.5),
    (10.707, 13.707, -3.5),
    (0, 6.7, -3.5),
    (0, 11.891, -3.5),
    (-8.575, 11.171, -3.5),
    (-9.707, 2.293, -3.5),
    (0, 2, -3.5),
    (9.707, 2.293, -3.5),
    (10, 3.85, -3.5),
    (9.707, 5.407, -3.5),
    (0, 5.7, -3.5),
    (-9.707, 5.407, -3.5),
    (8.575, 11.171, -3.5),
    (-9.325, 10.45, -3.5),
    (9.325, 10.45, -3.5),
]))
fillet3.setExpression("Radius", "Params.fillet3_radius")
doc.recompute()

fillet4 = body.newObject("PartDesign::Fillet", "Fillet003")
fillet4.Base = (fillet3, edges_at(fillet3, [
    (-11.414, 14.414, 1.5),
    (0, 0, 1.5),
    (-12, 7.5, 1.5),
    (12, 7.5, 1.5),
    (11.414, 0.586, 1.5),
    (11.414, 14.414, 1.5),
    (0, 15, 1.5),
    (-11.414, 0.586, 1.5),
]))
fillet4.setExpression("Radius", "Params.fillet4_radius")

# Sketch on XY plane
sketch7 = body.newObject("Sketcher::SketchObject", "Sketch006")
sketch7.AttachmentSupport = (doc.getObject("XY_Plane"), [""])
sketch7.MapMode = "FlatFace"
sketch7.AttachmentOffset = App.Placement(App.Vector(0, 0, 4.5), App.Rotation())
sketch7.addGeometry(Part.LineSegment(App.Vector(3.5, 9.8, 0), App.Vector(3.5, 7, 0)), False)
sketch7.addGeometry(Part.LineSegment(App.Vector(3.5, 7, 0), App.Vector(-3.5, 7, 0)), False)
sketch7.addGeometry(Part.LineSegment(App.Vector(-3.5, 7, 0), App.Vector(-3.5, 9.8, 0)), False)
sketch7.addGeometry(Part.LineSegment(App.Vector(-3.5, 9.8, 0), App.Vector(3.5, 9.8, 0)), False)
sketch7.addConstraint(Sketcher.Constraint("Coincident", 0, 2, 1, 1))
sketch7.addConstraint(Sketcher.Constraint("Coincident", 1, 2, 2, 1))
sketch7.addConstraint(Sketcher.Constraint("Coincident", 2, 2, 3, 1))
sketch7.addConstraint(Sketcher.Constraint("Coincident", 3, 2, 0, 1))
sketch7.addConstraint(Sketcher.Constraint("Vertical", 0))
sketch7.addConstraint(Sketcher.Constraint("Horizontal", 1))
sketch7.addConstraint(Sketcher.Constraint("Vertical", 2))
sketch7.addConstraint(Sketcher.Constraint("Horizontal", 3))
sketch7.addConstraint(Sketcher.Constraint("DistanceX", 1, 2, 1, 1, 7.0))
sketch7.addConstraint(Sketcher.Constraint("DistanceY", 0, 2, 0, 1, 2.8))
sketch7.addConstraint(Sketcher.Constraint("DistanceX", -1, 1, 0, 2, 3.5))
sketch7.addConstraint(Sketcher.Constraint("DistanceY", -1, 1, 0, 2, 7.05))
sketch7.setExpression("Constraints[8]", "Params.sketch7_width")
sketch7.setExpression("Constraints[9]", "Params.sketch7_height")
pocket6 = body.newObject("PartDesign::Pocket", "Pocket005")
pocket6.Profile = sketch7
pocket6.Type = "ThroughAll"
pocket6.Reversed = True
doc.recompute()

fillet5 = body.newObject("PartDesign::Fillet", "Fillet004")
fillet5.Base = (pocket6, edges_at(pocket6, [
    (-3.5, 8.45, 5.25),
    (-3.5, 9.4, 6.5),
    (-3.5, 9.85, 5.5),
    (3.5, 8.45, 5.25),
    (3.5, 9.4, 6.5),
    (-3.5, 8.596, 6.354),
    (3.5, 8.596, 6.354),
    (0, 9.85, 6.5),
    (3.5, 9.85, 5.5),
]))
fillet5.setExpression("Radius", "Params.fillet5_radius")

doc.recompute()
